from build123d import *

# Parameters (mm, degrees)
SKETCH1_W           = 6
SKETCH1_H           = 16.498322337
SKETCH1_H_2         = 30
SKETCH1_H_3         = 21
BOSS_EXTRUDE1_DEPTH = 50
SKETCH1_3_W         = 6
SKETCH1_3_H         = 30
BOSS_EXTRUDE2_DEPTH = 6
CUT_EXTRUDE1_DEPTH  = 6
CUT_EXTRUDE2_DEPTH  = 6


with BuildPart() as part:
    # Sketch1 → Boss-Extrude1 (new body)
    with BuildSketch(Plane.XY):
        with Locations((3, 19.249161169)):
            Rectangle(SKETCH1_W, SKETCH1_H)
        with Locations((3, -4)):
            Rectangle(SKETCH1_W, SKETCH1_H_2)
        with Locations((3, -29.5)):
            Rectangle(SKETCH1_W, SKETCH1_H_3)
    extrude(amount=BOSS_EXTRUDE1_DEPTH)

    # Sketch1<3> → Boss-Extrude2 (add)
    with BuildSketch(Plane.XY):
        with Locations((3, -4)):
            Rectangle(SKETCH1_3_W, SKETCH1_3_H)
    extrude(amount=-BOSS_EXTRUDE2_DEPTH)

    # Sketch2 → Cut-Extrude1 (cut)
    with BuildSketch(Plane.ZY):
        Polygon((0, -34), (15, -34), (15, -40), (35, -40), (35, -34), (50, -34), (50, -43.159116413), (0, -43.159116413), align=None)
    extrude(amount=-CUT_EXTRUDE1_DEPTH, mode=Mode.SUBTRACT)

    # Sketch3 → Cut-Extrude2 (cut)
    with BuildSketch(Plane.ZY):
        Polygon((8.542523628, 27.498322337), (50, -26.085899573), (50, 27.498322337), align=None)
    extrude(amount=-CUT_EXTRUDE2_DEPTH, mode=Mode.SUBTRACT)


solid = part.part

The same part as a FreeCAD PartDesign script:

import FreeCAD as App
import Part
import Sketcher
Q = App.Units.Quantity

doc = App.newDocument("Part")
body = doc.addObject("PartDesign::Body", "Body")

# Sketch on XY plane
sketch1 = body.newObject("Sketcher::SketchObject", "Sketch")
sketch1.AttachmentSupport = (doc.getObject("XY_Plane"), [""])
sketch1.MapMode = "FlatFace"
sketch1.addGeometry([
    Part.LineSegment(App.Vector(0, 27, 0), App.Vector(0, -40, 0)),
    Part.LineSegment(App.Vector(0, -40, 0), App.Vector(6, -40, 0)),
    Part.LineSegment(App.Vector(6, -40, 0), App.Vector(6, 27, 0)),
    Part.LineSegment(App.Vector(6, 27, 0), App.Vector(0, 27, 0)),
], False)
sketch1.addConstraint([
    Sketcher.Constraint("Coincident", 0, 2, 1, 1),
    Sketcher.Constraint("Coincident", 1, 2, 2, 1),
    Sketcher.Constraint("Coincident", 2, 2, 3, 1),
    Sketcher.Constraint("Coincident", 3, 2, 0, 1),
    Sketcher.Constraint("Vertical", 0),
    Sketcher.Constraint("Horizontal", 1),
    Sketcher.Constraint("Vertical", 2),
    Sketcher.Constraint("Horizontal", 3),
    Sketcher.Constraint("PointOnObject", 0, 2, -2),
    Sketcher.Constraint("DistanceX", 1, 1, 1, 2, Q("6 mm")),
    Sketcher.Constraint("DistanceY", 0, 2, -1, 1, Q("40 mm")),
    Sketcher.Constraint("DistanceY", 0, 2, 0, 1, Q("67.498322 mm")),
])
pad1 = body.newObject("PartDesign::Pad", "Pad")
pad1.Profile = sketch1
pad1.Length = 50

# Sketch on XY plane
sketch2 = body.newObject("Sketcher::SketchObject", "Sketch001")
sketch2.AttachmentSupport = (doc.getObject("XY_Plane"), [""])
sketch2.MapMode = "FlatFace"
sketch2.addGeometry([
    Part.LineSegment(App.Vector(0, 11, 0), App.Vector(0, -19, 0)),
    Part.LineSegment(App.Vector(0, -19, 0), App.Vector(6, -19, 0)),
    Part.LineSegment(App.Vector(6, -19, 0), App.Vector(6, 11, 0)),
    Part.LineSegment(App.Vector(6, 11, 0), App.Vector(0, 11, 0)),
], False)
sketch2.addConstraint([
    Sketcher.Constraint("Coincident", 0, 2, 1, 1),
    Sketcher.Constraint("Coincident", 1, 2, 2, 1),
    Sketcher.Constraint("Coincident", 2, 2, 3, 1),
    Sketcher.Constraint("Coincident", 3, 2, 0, 1),
    Sketcher.Constraint("Vertical", 0),
    Sketcher.Constraint("Horizontal", 1),
    Sketcher.Constraint("Vertical", 2),
    Sketcher.Constraint("Horizontal", 3),
    Sketcher.Constraint("PointOnObject", 0, 2, -2),
    Sketcher.Constraint("DistanceX", 1, 1, 1, 2, Q("6 mm")),
    Sketcher.Constraint("DistanceY", 0, 2, 0, 1, Q("30 mm")),
    Sketcher.Constraint("DistanceY", 0, 2, -1, 1, Q("19 mm")),
])
pad2 = body.newObject("PartDesign::Pad", "Pad001")
pad2.Profile = sketch2
pad2.Length = 6
pad2.Reversed = True

# Sketch on YZ plane
sketch3 = body.newObject("Sketcher::SketchObject", "Sketch002")
sketch3.AttachmentSupport = (doc.getObject("YZ_Plane"), [""])
sketch3.MapMode = "FlatFace"
sketch3.addGeometry([
    Part.LineSegment(App.Vector(-34, 15, 0), App.Vector(-34, 0, 0)),  # 0
    Part.LineSegment(App.Vector(-34, 0, 0), App.Vector(-43, 0, 0)),  # 1
    Part.LineSegment(App.Vector(-43, 0, 0), App.Vector(-43, 50, 0)),  # 2
    Part.LineSegment(App.Vector(-43, 50, 0), App.Vector(-34, 50, 0)),  # 3
    Part.LineSegment(App.Vector(-34, 50, 0), App.Vector(-34, 35, 0)),  # 4
    Part.LineSegment(App.Vector(-34, 35, 0), App.Vector(-40, 35, 0)),  # 5
    Part.LineSegment(App.Vector(-40, 35, 0), App.Vector(-40, 15, 0)),  # 6
    Part.LineSegment(App.Vector(-40, 15, 0), App.Vector(-34, 15, 0)),  # 7
], False)
sketch3.addConstraint([
    Sketcher.Constraint("Coincident", 0, 2, 1, 1),
    Sketcher.Constraint("Coincident", 1, 2, 2, 1),
    Sketcher.Constraint("Coincident", 2, 2, 3, 1),
    Sketcher.Constraint("Coincident", 3, 2, 4, 1),
    Sketcher.Constraint("Coincident", 4, 2, 5, 1),
    Sketcher.Constraint("Coincident", 5, 2, 6, 1),
    Sketcher.Constraint("Coincident", 6, 2, 7, 1),
    Sketcher.Constraint("Coincident", 7, 2, 0, 1),
    Sketcher.Constraint("Vertical", 0),
    Sketcher.Constraint("Horizontal", 1),
    Sketcher.Constraint("Vertical", 2),
    Sketcher.Constraint("Horizontal", 3),
    Sketcher.Constraint("Vertical", 4),
    Sketcher.Constraint("Horizontal", 5),
    Sketcher.Constraint("Vertical", 6),
    Sketcher.Constraint("Horizontal", 7),
    Sketcher.Constraint("PointOnObject", 0, 2, -1),
    Sketcher.Constraint("Vertical", 0, 2, 3, 2),
    Sketcher.Constraint("Equal", 0, 4),
    Sketcher.Constraint("DistanceX", 5, 2, 5, 1, Q("6 mm")),
    Sketcher.Constraint("DistanceY", 0, 2, 0, 1, Q("15 mm")),
    Sketcher.Constraint("DistanceY", 2, 1, 2, 2, Q("50 mm")),
    Sketcher.Constraint("DistanceX", 0, 2, -1, 1, Q("34 mm")),
    Sketcher.Constraint("DistanceX", 1, 2, 1, 1, Q("9.159116 mm")),
])
pocket1 = body.newObject("PartDesign::Pocket", "Pocket")
pocket1.Profile = sketch3
pocket1.Length = 6
pocket1.Reversed = True

# Sketch on YZ plane
sketch4 = body.newObject("Sketcher::SketchObject", "Sketch003")
sketch4.AttachmentSupport = (doc.getObject("YZ_Plane"), [""])
sketch4.MapMode = "FlatFace"
sketch4.addGeometry([
    Part.LineSegment(App.Vector(27, 9, 0), App.Vector(-26, 50, 0)),
    Part.LineSegment(App.Vector(-26, 50, 0), App.Vector(27, 50, 0)),
    Part.LineSegment(App.Vector(27, 50, 0), App.Vector(27, 9, 0)),
], False)
sketch4.addConstraint([
    Sketcher.Constraint("Coincident", 0, 2, 1, 1),
    Sketcher.Constraint("Coincident", 1, 2, 2, 1),
    Sketcher.Constraint("Coincident", 2, 2, 0, 1),
    Sketcher.Constraint("Horizontal", 1),
    Sketcher.Constraint("Vertical", 2),
    Sketcher.Constraint("DistanceY", -1, 1, 0, 2, Q("50 mm")),
    Sketcher.Constraint("DistanceX", 1, 1, 1, 2, Q("53.584222 mm")),
    Sketcher.Constraint("DistanceX", 0, 2, -1, 1, Q("26.0859 mm")),
    Sketcher.Constraint("DistanceY", 2, 2, 2, 1, Q("41.457476 mm")),
])
pocket2 = body.newObject("PartDesign::Pocket", "Pocket001")
pocket2.Profile = sketch4
pocket2.Length = 6
pocket2.Reversed = True

doc.recompute()
